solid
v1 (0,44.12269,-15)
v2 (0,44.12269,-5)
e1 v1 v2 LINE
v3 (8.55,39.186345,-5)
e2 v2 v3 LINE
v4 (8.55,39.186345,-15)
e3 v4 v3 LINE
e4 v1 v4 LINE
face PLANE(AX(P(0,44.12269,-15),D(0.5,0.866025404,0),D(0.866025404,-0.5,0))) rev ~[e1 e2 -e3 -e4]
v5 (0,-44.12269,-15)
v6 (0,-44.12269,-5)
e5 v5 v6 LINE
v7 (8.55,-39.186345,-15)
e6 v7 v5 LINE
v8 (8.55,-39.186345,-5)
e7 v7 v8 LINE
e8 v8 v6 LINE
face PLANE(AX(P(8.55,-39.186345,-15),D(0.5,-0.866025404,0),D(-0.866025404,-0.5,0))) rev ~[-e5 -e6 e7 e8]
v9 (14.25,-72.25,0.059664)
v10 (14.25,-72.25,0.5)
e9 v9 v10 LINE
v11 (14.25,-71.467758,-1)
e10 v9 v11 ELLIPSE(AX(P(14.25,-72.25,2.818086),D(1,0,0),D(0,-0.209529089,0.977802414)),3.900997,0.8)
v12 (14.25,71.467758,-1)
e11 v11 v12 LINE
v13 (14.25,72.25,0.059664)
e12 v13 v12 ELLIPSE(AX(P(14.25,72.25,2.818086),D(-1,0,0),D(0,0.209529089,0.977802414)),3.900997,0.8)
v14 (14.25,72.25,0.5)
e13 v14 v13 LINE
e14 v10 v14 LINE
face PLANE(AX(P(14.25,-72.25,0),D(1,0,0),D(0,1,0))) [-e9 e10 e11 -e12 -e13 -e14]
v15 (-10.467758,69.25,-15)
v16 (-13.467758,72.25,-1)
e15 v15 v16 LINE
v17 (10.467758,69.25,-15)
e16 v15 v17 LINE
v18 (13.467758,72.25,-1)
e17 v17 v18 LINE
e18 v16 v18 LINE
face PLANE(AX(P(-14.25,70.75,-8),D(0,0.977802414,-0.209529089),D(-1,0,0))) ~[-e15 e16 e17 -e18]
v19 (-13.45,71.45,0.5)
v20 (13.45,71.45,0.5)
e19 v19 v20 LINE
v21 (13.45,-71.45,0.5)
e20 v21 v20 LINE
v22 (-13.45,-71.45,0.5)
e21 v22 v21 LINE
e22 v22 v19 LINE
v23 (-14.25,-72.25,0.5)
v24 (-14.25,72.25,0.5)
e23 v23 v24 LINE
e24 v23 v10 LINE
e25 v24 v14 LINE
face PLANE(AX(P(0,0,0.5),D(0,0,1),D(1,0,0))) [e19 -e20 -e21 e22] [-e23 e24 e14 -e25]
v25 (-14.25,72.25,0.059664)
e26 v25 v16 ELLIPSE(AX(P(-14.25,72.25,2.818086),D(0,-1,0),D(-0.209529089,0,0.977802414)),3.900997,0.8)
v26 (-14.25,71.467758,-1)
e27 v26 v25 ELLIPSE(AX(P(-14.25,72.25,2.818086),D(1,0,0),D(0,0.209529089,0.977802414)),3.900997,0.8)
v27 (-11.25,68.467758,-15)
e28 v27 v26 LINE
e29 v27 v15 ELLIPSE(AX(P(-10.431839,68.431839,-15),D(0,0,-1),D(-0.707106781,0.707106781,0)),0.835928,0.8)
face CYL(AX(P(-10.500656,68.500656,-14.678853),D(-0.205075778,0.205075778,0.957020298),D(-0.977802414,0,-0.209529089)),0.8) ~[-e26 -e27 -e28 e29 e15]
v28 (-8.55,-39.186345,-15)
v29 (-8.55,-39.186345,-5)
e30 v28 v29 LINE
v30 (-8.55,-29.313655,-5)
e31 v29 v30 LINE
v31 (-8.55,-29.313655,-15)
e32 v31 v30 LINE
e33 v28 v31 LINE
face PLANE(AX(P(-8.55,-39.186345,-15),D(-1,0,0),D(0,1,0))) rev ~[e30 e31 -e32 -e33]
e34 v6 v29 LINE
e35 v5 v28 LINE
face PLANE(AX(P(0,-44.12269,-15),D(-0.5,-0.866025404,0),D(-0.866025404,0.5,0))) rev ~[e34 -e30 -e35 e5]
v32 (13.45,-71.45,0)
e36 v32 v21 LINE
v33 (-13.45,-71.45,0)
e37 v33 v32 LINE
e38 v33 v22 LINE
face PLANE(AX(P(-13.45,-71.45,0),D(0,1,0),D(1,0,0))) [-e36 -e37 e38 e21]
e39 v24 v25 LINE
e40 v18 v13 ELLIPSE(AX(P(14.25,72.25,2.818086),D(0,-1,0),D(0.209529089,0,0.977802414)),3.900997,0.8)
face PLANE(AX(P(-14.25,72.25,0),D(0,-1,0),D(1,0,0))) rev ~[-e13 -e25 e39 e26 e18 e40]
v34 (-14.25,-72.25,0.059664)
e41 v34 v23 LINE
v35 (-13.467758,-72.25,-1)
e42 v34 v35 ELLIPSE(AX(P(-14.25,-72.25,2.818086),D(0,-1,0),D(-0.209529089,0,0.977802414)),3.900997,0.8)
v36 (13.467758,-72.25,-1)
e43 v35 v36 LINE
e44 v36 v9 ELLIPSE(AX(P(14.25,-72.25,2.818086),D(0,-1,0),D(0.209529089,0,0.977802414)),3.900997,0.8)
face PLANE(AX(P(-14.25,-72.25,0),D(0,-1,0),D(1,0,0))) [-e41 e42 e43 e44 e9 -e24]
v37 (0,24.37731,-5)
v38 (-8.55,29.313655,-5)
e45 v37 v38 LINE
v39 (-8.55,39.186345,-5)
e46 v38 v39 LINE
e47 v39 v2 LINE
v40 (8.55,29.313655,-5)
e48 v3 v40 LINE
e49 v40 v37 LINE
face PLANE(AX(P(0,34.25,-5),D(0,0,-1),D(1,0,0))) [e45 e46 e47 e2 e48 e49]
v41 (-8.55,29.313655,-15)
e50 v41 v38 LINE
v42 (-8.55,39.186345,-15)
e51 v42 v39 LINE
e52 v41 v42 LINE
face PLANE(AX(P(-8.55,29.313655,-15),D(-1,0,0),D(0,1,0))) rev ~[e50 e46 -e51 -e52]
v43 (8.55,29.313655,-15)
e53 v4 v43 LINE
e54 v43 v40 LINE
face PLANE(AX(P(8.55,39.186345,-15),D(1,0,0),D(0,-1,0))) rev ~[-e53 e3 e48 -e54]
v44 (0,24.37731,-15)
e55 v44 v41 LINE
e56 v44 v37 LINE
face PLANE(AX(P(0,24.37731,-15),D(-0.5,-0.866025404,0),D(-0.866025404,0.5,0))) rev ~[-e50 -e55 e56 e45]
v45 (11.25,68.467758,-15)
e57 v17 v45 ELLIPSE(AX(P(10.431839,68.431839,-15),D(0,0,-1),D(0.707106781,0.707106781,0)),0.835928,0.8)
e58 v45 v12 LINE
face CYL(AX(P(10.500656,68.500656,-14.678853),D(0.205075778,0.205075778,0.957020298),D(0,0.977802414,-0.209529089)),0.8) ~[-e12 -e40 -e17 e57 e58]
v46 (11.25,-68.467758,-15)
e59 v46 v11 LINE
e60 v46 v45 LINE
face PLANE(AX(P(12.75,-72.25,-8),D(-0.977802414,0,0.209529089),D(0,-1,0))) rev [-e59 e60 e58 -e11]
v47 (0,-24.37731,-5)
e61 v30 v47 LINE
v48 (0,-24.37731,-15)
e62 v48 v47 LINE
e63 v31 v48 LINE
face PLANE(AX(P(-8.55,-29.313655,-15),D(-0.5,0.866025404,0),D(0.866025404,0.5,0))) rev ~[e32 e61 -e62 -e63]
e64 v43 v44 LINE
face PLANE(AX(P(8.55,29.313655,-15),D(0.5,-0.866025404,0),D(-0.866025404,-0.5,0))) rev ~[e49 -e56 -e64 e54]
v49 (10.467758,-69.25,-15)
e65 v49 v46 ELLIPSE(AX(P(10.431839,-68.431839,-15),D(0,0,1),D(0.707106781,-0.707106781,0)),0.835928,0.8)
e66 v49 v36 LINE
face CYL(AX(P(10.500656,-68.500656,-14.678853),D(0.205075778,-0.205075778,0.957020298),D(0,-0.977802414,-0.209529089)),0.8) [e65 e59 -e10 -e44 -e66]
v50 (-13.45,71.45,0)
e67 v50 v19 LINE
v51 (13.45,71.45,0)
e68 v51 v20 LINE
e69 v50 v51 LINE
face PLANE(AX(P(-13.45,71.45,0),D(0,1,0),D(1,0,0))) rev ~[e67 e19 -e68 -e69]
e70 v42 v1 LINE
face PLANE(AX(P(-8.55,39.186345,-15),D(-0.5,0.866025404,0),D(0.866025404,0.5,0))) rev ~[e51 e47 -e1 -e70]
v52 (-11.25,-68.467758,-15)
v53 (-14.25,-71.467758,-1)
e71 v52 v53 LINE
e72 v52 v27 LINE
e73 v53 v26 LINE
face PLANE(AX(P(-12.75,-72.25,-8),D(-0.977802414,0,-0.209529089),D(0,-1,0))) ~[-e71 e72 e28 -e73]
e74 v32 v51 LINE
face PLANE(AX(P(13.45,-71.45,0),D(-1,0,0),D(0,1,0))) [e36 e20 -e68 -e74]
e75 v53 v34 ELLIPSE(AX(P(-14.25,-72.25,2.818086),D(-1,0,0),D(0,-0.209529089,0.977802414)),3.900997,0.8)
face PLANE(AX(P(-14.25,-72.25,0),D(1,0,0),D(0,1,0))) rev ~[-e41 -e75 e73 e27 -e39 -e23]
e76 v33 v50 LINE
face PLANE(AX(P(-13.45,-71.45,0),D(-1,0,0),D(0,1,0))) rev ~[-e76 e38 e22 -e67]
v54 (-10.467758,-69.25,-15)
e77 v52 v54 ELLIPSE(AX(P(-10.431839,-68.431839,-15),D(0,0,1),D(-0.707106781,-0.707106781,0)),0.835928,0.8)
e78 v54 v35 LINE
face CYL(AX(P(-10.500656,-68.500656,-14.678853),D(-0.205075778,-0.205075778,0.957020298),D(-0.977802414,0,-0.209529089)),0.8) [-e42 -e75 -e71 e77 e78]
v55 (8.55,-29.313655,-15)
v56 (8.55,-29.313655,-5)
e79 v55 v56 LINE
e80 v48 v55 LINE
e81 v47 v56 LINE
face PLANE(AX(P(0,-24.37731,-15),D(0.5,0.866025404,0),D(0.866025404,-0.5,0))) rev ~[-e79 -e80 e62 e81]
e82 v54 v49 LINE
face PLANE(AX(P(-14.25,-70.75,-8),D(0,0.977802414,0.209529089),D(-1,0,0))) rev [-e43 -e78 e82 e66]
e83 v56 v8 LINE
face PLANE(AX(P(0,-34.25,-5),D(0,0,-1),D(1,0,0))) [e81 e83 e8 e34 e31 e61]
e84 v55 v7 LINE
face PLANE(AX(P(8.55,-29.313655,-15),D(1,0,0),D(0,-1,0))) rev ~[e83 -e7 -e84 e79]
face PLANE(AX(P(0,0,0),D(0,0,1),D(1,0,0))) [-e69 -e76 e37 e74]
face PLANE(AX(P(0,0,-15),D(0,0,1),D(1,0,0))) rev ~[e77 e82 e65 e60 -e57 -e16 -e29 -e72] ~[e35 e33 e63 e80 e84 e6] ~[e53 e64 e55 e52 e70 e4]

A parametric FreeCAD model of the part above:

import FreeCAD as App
import Part
import Sketcher
Q = App.Units.Quantity


def edges_at(feature, points):
    """Names of the edges that pass closest to the given points."""
    edges = feature.Shape.Edges
    near = lambda p: min(range(len(edges)), key=lambda i: edges[i].distToShape(Part.Vertex(*p))[0])
    return sorted({f"Edge{near(p) + 1}" for p in points})


def add_polygon(sketch, points):
    """Adds a closed chain of lines whose ends are joined by coincident constraints."""
    first, n = sketch.GeometryCount, len(points)
    for a, b in zip(points, points[1:] + points[:1]):
        sketch.addGeometry(Part.LineSegment(App.Vector(*a, 0), App.Vector(*b, 0)), False)
    for i in range(n):
        sketch.addConstraint(Sketcher.Constraint("Coincident", first + i, 2, first + (i + 1) % n, 1))

doc = App.newDocument("Part")
body = doc.addObject("PartDesign::Body", "Body")

# Sketch on XY plane
sketch1 = body.newObject("Sketcher::SketchObject", "Sketch")
sketch1.AttachmentSupport = (doc.getObject("XY_Plane"), [""])
sketch1.MapMode = "FlatFace"
add_polygon(sketch1, [(-14, 72), (-14, -72), (14, -72), (14, 72)])  # lines 0-3
add_polygon(sketch1, [(13, -71), (-13, -71), (-13, 71), (13, 71)])  # lines 4-7
sketch1.addConstraint([
    Sketcher.Constraint("Vertical", 0),
    Sketcher.Constraint("Horizontal", 1),
    Sketcher.Constraint("Vertical", 2),
    Sketcher.Constraint("Horizontal", 3),
    Sketcher.Constraint("Horizontal", 4),
    Sketcher.Constraint("Vertical", 5),
    Sketcher.Constraint("Horizontal", 6),
    Sketcher.Constraint("Vertical", 7),
    Sketcher.Constraint("Symmetric", 0, 2, 2, 2, -1, 1),
    Sketcher.Constraint("Symmetric", 4, 2, 6, 2, -1, 1),
    Sketcher.Constraint("DistanceX", 1, 1, 1, 2, Q("28.5 mm")),
    Sketcher.Constraint("DistanceX", 4, 2, 4, 1, Q("26.9 mm")),
    Sketcher.Constraint("DistanceY", 0, 2, 0, 1, Q("144.5 mm")),
    Sketcher.Constraint("DistanceY", 5, 1, 5, 2, Q("142.9 mm")),
])
pad1 = body.newObject("PartDesign::Pad", "Pad")
pad1.Profile = sketch1
pad1.Length = 0.5

# Sketch on XY plane
sketch2 = body.newObject("Sketcher::SketchObject", "Sketch001")
sketch2.AttachmentSupport = (doc.getObject("XY_Plane"), [""])
sketch2.MapMode = "FlatFace"
add_polygon(sketch2, [(-14, 72), (-14, -72), (14, -72), (14, 72)])  # lines 0-3
sketch2.addConstraint([
    Sketcher.Constraint("Vertical", 0),
    Sketcher.Constraint("Horizontal", 1),
    Sketcher.Constraint("Vertical", 2),
    Sketcher.Constraint("Horizontal", 3),
    Sketcher.Constraint("Symmetric", 0, 2, 2, 2, -1, 1),
    Sketcher.Constraint("DistanceX", 1, 1, 1, 2, Q("28.5 mm")),
    Sketcher.Constraint("DistanceY", 0, 2, 0, 1, Q("144.5 mm")),
])
pad2 = body.newObject("PartDesign::Pad", "Pad001")
pad2.Profile = sketch2
pad2.Length = 15
pad2.Reversed = True
doc.recompute()

chamfer = body.newObject("PartDesign::Chamfer", "Chamfer")
chamfer.Base = (pad2, edges_at(pad2, [
    (0, -72.25, -15),
    (14.25, 0, -15),
    (0, 72.25, -15),
    (-14.25, 0, -15),
]))
chamfer.ChamferType = "Two distances"
chamfer.Size = 3
chamfer.Size2 = 14
doc.recompute()

fillet = body.newObject("PartDesign::Fillet", "Fillet")
fillet.Base = (chamfer, edges_at(chamfer, [
    (12.75, 70.75, -8),
    (-12.75, 70.75, -8),
    (12.75, -70.75, -8),
    (-12.75, -70.75, -8),
]))
fillet.Radius = 0.8

# Sketch on XY plane
sketch3 = body.newObject("Sketcher::SketchObject", "Sketch002")
sketch3.AttachmentSupport = (doc.getObject("XY_Plane"), [""])
sketch3.MapMode = "FlatFace"
sketch3.AttachmentOffset = App.Placement(App.Vector(0, 0, -15), App.Rotation())
add_polygon(sketch3, [(-9, -39), (-9, -29), (0, -24), (9, -29), (9, -39), (0, -44)])  # lines 0-5
add_polygon(sketch3, [(-9, 39), (0, 44), (9, 39), (9, 29), (0, 24), (-9, 29)])  # lines 6-11
sketch3.addConstraint([
    Sketcher.Constraint("Vertical", 0),
    Sketcher.Constraint("Vertical", 3),
    Sketcher.Constraint("Vertical", 8),
    Sketcher.Constraint("Vertical", 11),
    Sketcher.Constraint("Symmetric", 4, 2, 6, 2, -1, 1),
    Sketcher.Constraint("Symmetric", 5, 2, 7, 2, -1, 1),
    Sketcher.Constraint("Symmetric", 1, 2, 9, 2, -1, 1),
    Sketcher.Constraint("Symmetric", 2, 2, 10, 2, -1, 1),
    Sketcher.Constraint("Symmetric", 0, 2, 2, 2, -2),
    Sketcher.Constraint("PointOnObject", 1, 2, -2),
    Sketcher.Constraint("PointOnObject", 4, 2, -2),
    Sketcher.Constraint("Parallel", 1, 4),
    Sketcher.Constraint("Parallel", 2, 5),
    Sketcher.Constraint("Parallel", 4, 6),
    Sketcher.Constraint("Parallel", 6, 9),
    Sketcher.Constraint("Angle", 1, Q("30 deg")),
    Sketcher.Constraint("DistanceX", 0, 2, 2, 2, Q("17.1 mm")),
    Sketcher.Constraint("DistanceY", 1, 2, 6, 2, Q("68.5 mm")),
    Sketcher.Constraint("DistanceY", 0, 1, 0, 2, Q("9.87269 mm")),
])
pocket1 = body.newObject("PartDesign::Pocket", "Pocket")
pocket1.Profile = sketch3
pocket1.Length = 10
pocket1.Reversed = True

doc.recompute()
